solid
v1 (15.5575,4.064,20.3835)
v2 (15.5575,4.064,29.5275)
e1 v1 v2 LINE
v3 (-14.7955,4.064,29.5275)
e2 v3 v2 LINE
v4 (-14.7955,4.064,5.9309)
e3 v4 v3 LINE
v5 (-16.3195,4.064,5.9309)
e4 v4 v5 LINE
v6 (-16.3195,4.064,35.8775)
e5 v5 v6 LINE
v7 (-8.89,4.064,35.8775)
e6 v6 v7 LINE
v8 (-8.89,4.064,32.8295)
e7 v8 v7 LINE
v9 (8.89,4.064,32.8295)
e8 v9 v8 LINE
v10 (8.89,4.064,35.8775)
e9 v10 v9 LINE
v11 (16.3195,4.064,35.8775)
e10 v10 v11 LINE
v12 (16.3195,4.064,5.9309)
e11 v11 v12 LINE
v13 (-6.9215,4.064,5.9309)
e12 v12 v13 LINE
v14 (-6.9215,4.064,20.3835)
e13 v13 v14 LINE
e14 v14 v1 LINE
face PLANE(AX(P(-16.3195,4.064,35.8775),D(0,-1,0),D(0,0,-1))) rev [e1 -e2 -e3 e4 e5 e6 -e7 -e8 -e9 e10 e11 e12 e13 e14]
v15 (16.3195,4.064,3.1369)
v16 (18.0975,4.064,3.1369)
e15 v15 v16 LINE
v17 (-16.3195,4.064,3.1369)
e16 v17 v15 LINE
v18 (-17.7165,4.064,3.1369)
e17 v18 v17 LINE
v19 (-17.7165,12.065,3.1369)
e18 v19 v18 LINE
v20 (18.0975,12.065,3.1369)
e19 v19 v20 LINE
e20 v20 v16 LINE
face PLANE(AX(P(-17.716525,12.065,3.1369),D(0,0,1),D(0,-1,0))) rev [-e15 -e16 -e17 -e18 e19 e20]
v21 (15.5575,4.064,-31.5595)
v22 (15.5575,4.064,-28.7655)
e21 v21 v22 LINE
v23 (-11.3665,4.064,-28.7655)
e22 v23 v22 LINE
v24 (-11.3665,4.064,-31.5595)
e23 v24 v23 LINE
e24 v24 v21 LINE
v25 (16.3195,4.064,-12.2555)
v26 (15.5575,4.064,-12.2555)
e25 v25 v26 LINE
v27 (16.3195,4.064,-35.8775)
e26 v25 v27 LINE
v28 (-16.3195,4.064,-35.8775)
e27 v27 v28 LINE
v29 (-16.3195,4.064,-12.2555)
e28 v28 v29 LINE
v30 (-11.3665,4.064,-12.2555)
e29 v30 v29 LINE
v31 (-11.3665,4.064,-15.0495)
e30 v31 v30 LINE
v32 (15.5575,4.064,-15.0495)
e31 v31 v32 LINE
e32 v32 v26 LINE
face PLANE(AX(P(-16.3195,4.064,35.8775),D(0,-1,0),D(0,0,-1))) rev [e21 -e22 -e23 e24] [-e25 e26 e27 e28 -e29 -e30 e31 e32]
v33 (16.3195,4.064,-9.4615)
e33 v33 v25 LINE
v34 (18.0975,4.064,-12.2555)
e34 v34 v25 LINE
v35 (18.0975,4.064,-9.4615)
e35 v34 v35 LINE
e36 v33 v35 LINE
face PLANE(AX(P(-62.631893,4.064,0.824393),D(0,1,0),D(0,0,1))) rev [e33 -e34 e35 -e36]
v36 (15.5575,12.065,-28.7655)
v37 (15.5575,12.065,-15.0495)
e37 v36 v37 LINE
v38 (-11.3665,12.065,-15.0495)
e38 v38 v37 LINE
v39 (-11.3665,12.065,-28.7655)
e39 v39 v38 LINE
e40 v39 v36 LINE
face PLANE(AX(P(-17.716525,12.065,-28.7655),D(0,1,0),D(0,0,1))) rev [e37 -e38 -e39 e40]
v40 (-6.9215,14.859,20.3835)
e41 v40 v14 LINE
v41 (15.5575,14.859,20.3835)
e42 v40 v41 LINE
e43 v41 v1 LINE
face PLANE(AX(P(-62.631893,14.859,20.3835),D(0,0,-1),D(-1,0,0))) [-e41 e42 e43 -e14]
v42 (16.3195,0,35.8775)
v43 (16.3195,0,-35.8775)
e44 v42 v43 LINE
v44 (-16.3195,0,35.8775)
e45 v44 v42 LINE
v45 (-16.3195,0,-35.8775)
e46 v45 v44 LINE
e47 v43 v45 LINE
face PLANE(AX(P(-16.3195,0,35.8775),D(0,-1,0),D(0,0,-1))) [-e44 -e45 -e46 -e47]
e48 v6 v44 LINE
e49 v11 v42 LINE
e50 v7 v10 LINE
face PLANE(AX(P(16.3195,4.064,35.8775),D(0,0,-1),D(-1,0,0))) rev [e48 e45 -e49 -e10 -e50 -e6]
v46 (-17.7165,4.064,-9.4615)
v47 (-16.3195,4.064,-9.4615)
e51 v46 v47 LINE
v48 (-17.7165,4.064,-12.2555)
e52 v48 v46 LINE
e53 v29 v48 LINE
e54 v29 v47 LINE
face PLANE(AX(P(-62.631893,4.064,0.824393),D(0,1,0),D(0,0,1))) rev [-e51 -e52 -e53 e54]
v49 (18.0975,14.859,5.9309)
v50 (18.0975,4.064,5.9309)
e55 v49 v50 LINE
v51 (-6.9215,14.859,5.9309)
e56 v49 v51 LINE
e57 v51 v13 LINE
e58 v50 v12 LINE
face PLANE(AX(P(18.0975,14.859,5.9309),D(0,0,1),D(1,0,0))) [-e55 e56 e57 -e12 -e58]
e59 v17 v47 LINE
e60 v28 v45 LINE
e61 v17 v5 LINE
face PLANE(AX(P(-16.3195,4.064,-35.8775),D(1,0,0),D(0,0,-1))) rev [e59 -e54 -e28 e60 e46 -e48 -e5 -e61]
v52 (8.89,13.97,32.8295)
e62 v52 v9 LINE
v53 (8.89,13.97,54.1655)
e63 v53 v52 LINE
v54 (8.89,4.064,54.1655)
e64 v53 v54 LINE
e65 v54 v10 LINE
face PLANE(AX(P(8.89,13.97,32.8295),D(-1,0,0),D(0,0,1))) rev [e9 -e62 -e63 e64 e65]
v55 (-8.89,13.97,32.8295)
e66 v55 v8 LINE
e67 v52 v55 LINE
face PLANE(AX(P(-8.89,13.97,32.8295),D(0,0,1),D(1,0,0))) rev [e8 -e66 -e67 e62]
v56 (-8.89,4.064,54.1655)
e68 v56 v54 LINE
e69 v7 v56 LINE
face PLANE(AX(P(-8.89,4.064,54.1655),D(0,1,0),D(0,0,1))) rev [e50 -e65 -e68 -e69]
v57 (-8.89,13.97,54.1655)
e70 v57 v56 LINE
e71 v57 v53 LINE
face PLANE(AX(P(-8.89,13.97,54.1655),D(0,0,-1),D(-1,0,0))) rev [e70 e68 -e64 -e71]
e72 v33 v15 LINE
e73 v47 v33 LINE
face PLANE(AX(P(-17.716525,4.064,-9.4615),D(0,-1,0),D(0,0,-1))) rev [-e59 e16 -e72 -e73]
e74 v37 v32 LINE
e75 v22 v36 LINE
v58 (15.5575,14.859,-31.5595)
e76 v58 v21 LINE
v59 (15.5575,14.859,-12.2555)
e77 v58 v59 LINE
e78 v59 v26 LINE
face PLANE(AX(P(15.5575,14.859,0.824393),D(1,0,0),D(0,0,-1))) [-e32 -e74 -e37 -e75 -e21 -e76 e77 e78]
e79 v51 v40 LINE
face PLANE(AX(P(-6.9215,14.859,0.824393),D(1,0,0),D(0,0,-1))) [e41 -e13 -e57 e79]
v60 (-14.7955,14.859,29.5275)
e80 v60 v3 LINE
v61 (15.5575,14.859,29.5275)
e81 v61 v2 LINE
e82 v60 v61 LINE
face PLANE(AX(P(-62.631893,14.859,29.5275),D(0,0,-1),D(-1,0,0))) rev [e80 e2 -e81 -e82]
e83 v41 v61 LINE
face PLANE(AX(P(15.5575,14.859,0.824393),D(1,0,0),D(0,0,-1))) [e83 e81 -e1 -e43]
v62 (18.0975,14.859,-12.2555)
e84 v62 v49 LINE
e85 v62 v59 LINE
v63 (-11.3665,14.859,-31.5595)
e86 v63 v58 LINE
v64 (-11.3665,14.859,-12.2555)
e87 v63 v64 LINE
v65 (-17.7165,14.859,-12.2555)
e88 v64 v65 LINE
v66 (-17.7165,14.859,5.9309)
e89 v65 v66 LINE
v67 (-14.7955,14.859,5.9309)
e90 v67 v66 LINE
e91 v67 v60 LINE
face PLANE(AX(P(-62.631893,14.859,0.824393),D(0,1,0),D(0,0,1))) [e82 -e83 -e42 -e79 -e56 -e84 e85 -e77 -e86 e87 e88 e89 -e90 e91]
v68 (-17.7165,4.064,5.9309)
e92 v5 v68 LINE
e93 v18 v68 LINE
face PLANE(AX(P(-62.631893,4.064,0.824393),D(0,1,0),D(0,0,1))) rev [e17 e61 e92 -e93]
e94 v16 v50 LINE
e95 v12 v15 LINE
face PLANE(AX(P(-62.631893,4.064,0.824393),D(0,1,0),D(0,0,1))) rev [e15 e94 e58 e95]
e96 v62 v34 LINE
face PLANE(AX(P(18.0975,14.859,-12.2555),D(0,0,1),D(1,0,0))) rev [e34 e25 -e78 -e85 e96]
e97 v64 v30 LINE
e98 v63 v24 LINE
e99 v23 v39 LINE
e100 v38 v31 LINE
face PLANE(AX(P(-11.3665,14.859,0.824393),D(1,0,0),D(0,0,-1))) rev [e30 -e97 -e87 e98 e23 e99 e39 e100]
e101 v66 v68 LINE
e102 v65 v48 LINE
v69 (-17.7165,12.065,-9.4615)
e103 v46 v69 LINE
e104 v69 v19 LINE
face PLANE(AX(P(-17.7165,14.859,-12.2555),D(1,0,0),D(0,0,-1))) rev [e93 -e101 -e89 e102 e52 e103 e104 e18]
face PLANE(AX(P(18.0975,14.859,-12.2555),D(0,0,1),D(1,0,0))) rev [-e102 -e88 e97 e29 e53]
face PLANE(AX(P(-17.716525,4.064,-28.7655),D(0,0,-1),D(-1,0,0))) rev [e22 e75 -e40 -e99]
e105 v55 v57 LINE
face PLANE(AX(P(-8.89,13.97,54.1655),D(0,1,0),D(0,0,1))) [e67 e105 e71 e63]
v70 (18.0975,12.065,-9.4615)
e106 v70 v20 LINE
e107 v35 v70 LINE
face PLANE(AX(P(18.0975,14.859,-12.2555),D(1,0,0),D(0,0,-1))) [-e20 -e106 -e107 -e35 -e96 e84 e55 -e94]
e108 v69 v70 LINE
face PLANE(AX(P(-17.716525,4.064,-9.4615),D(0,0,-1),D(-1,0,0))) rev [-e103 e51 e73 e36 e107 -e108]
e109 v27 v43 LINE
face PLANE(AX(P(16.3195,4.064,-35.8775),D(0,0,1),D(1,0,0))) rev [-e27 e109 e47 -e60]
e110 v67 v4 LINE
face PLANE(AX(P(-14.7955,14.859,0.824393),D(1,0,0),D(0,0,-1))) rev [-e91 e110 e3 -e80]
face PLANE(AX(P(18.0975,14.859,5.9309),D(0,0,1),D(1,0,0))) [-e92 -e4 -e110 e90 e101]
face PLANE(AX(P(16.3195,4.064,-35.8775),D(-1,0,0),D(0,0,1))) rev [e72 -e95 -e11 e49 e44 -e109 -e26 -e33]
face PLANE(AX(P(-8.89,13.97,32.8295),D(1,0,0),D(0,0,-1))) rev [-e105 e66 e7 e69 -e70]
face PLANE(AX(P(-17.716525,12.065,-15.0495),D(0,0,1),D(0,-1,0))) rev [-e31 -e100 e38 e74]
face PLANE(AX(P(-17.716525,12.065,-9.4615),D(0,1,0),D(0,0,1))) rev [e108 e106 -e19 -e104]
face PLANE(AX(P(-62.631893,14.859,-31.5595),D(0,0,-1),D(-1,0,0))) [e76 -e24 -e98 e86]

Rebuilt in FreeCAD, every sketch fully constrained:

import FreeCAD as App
import Part
import Sketcher
from FreeCAD import Vector
Q = App.Units.Quantity

doc = App.newDocument("Part")
body = doc.addObject("PartDesign::Body", "Body")

# Sketch on XZ plane
sketch1 = body.newObject("Sketcher::SketchObject", "Sketch")
sketch1.AttachmentSupport = (doc.getObject("XZ_Plane"), [""])
sketch1.MapMode = "FlatFace"
sketch1.addGeometry([
    Part.LineSegment(Vector(-16, -36, 0), Vector(-16, 36, 0)),
    Part.LineSegment(Vector(-16, 36, 0), Vector(16, 36, 0)),
    Part.LineSegment(Vector(16, 36, 0), Vector(16, -36, 0)),
    Part.LineSegment(Vector(16, -36, 0), Vector(-16, -36, 0)),
], False)
sketch1.addConstraint([
    Sketcher.Constraint("Coincident", 0, 2, 1, 1),
    Sketcher.Constraint("Coincident", 1, 2, 2, 1),
    Sketcher.Constraint("Coincident", 2, 2, 3, 1),
    Sketcher.Constraint("Coincident", 3, 2, 0, 1),
    Sketcher.Constraint("Vertical", 0),
    Sketcher.Constraint("Horizontal", 1),
    Sketcher.Constraint("Vertical", 2),
    Sketcher.Constraint("Horizontal", 3),
    Sketcher.Constraint("Symmetric", 0, 2, 2, 2, -1, 1),
    Sketcher.Constraint("DistanceX", 1, 1, 1, 2, Q("1.285 in")),
    Sketcher.Constraint("DistanceY", 0, 1, 0, 2, Q("2.825 in")),
])
pad1 = body.newObject("PartDesign::Pad", "Pad")
pad1.Profile = sketch1
pad1.Length = Q("0.16 in")
pad1.Reversed = True

# Sketch on XZ plane
sketch2 = body.newObject("Sketcher::SketchObject", "Sketch001")
sketch2.AttachmentSupport = (doc.getObject("XZ_Plane"), [""])
sketch2.MapMode = "FlatFace"
sketch2.AttachmentOffset = App.Placement(Vector(0, 0, -0.16 * 25.4), App.Rotation())
sketch2.addGeometry([
    Part.LineSegment(Vector(-11.4, -31.6, 0), Vector(-11.4, -12.3, 0)),  # 0
    Part.LineSegment(Vector(-11.4, -12.3, 0), Vector(-17.7, -12.3, 0)),  # 1
    Part.LineSegment(Vector(-17.7, -12.3, 0), Vector(-17.7, 5.9, 0)),  # 2
    Part.LineSegment(Vector(-17.7, 5.9, 0), Vector(-14.8, 5.9, 0)),  # 3
    Part.LineSegment(Vector(-14.8, 5.9, 0), Vector(-14.8, 29.5, 0)),  # 4
    Part.LineSegment(Vector(-14.8, 29.5, 0), Vector(15.6, 29.5, 0)),  # 5
    Part.LineSegment(Vector(15.6, 29.5, 0), Vector(15.6, 20.4, 0)),  # 6
    Part.LineSegment(Vector(15.6, 20.4, 0), Vector(-6.9, 20.4, 0)),  # 7
    Part.LineSegment(Vector(-6.9, 20.4, 0), Vector(-6.9, 5.9, 0)),  # 8
    Part.LineSegment(Vector(-6.9, 5.9, 0), Vector(18.1, 5.9, 0)),  # 9
    Part.LineSegment(Vector(18.1, 5.9, 0), Vector(18.1, -12.3, 0)),  # 10
    Part.LineSegment(Vector(18.1, -12.3, 0), Vector(15.6, -12.3, 0)),  # 11
    Part.LineSegment(Vector(15.6, -12.3, 0), Vector(15.6, -31.6, 0)),  # 12
    Part.LineSegment(Vector(15.6, -31.6, 0), Vector(-11.4, -31.6, 0)),  # 13
], False)
sketch2.addConstraint([
    Sketcher.Constraint("Coincident", 0, 2, 1, 1),
    Sketcher.Constraint("Coincident", 1, 2, 2, 1),
    Sketcher.Constraint("Coincident", 2, 2, 3, 1),
    Sketcher.Constraint("Coincident", 3, 2, 4, 1),
    Sketcher.Constraint("Coincident", 4, 2, 5, 1),
    Sketcher.Constraint("Coincident", 5, 2, 6, 1),
    Sketcher.Constraint("Coincident", 6, 2, 7, 1),
    Sketcher.Constraint("Coincident", 7, 2, 8, 1),
    Sketcher.Constraint("Coincident", 8, 2, 9, 1),
    Sketcher.Constraint("Coincident", 9, 2, 10, 1),
    Sketcher.Constraint("Coincident", 10, 2, 11, 1),
    Sketcher.Constraint("Coincident", 11, 2, 12, 1),
    Sketcher.Constraint("Coincident", 12, 2, 13, 1),
    Sketcher.Constraint("Coincident", 13, 2, 0, 1),
    Sketcher.Constraint("Vertical", 0),
    Sketcher.Constraint("Horizontal", 1),
    Sketcher.Constraint("Vertical", 2),
    Sketcher.Constraint("Horizontal", 3),
    Sketcher.Constraint("Vertical", 4),
    Sketcher.Constraint("Horizontal", 5),
    Sketcher.Constraint("Vertical", 6),
    Sketcher.Constraint("Horizontal", 7),
    Sketcher.Constraint("Vertical", 8),
    Sketcher.Constraint("Horizontal", 9),
    Sketcher.Constraint("Vertical", 10),
    Sketcher.Constraint("Horizontal", 11),
    Sketcher.Constraint("Vertical", 12),
    Sketcher.Constraint("Horizontal", 13),
    Sketcher.Constraint("Horizontal", 3, 2, 8, 2),
    Sketcher.Constraint("Horizontal", 1, 2, 10, 2),
    Sketcher.Constraint("Vertical", 6, 2, 11, 2),
    Sketcher.Constraint("DistanceX", 11, 2, 11, 1, Q("0.1 in")),
    Sketcher.Constraint("DistanceX", 1, 2, 1, 1, Q("0.25 in")),
    Sketcher.Constraint("DistanceX", 13, 2, 13, 1, Q("1.06 in")),
    Sketcher.Constraint("DistanceY", 0, 1, 0, 2, Q("0.76 in")),
    Sketcher.Constraint("DistanceY", 6, 2, 6, 1, Q("0.36 in")),
    Sketcher.Constraint("DistanceX", 3, 1, 3, 2, Q("0.115 in")),
    Sketcher.Constraint("DistanceX", 7, 2, 7, 1, Q("0.885 in")),
    Sketcher.Constraint("DistanceY", 2, 1, 2, 2, Q("0.716 in")),
    Sketcher.Constraint("DistanceY", 4, 1, 4, 2, Q("0.929 in")),
    Sketcher.Constraint("DistanceX", 0, 2, -1, 1, Q("0.4475 in")),
    Sketcher.Constraint("DistanceY", 0, 2, -1, 1, Q("0.4825 in")),
])
pad2 = body.newObject("PartDesign::Pad", "Pad001")
pad2.Profile = sketch2
pad2.Length = Q("0.425 in")
pad2.Reversed = True

# Sketch on XZ plane
sketch3 = body.newObject("Sketcher::SketchObject", "Sketch002")
sketch3.AttachmentSupport = (doc.getObject("XZ_Plane"), [""])
sketch3.MapMode = "FlatFace"
sketch3.AttachmentOffset = App.Placement(Vector(0, 0, -0.16 * 25.4), App.Rotation())
sketch3.addGeometry([
    Part.LineSegment(Vector(-9, 33, 0), Vector(-9, 54, 0)),
    Part.LineSegment(Vector(-9, 54, 0), Vector(9, 54, 0)),
    Part.LineSegment(Vector(9, 54, 0), Vector(9, 33, 0)),
    Part.LineSegment(Vector(9, 33, 0), Vector(-9, 33, 0)),
], False)
sketch3.addConstraint([
    Sketcher.Constraint("Coincident", 0, 2, 1, 1),
    Sketcher.Constraint("Coincident", 1, 2, 2, 1),
    Sketcher.Constraint("Coincident", 2, 2, 3, 1),
    Sketcher.Constraint("Coincident", 3, 2, 0, 1),
    Sketcher.Constraint("Vertical", 0),
    Sketcher.Constraint("Horizontal", 1),
    Sketcher.Constraint("Vertical", 2),
    Sketcher.Constraint("Horizontal", 3),
    Sketcher.Constraint("DistanceX", 1, 1, 1, 2, Q("0.7 in")),
    Sketcher.Constraint("DistanceY", 0, 1, 0, 2, Q("0.84 in")),
    Sketcher.Constraint("DistanceX", 0, 2, -1, 1, Q("0.35 in")),
    Sketcher.Constraint("DistanceY", -1, 1, 0, 2, Q("2.1325 in")),
])
pad3 = body.newObject("PartDesign::Pad", "Pad002")
pad3.Profile = sketch3
pad3.Length = Q("0.39 in")
pad3.Reversed = True

# Sketch on YZ plane
sketch4 = body.newObject("Sketcher::SketchObject", "Sketch003")
sketch4.AttachmentSupport = (doc.getObject("YZ_Plane"), [""])
sketch4.MapMode = "FlatFace"
sketch4.AttachmentOffset = App.Placement(Vector(0, 0, 0.6125 * 25.4), App.Rotation())
sketch4.addGeometry([
    Part.LineSegment(Vector(12, -15, 0), Vector(4, -15, 0)),  # 0
    Part.LineSegment(Vector(4, -15, 0), Vector(4, -29, 0)),  # 1
    Part.LineSegment(Vector(4, -29, 0), Vector(12, -29, 0)),  # 2
    Part.LineSegment(Vector(12, -29, 0), Vector(12, -15, 0)),  # 3
    Part.LineSegment(Vector(12, 3, 0), Vector(4, 3, 0)),  # 4
    Part.LineSegment(Vector(4, 3, 0), Vector(4, -9, 0)),  # 5
    Part.LineSegment(Vector(4, -9, 0), Vector(12, -9, 0)),  # 6
    Part.LineSegment(Vector(12, -9, 0), Vector(12, 3, 0)),  # 7
], False)
sketch4.addConstraint([
    Sketcher.Constraint("Coincident", 0, 2, 1, 1),
    Sketcher.Constraint("Coincident", 1, 2, 2, 1),
    Sketcher.Constraint("Coincident", 2, 2, 3, 1),
    Sketcher.Constraint("Coincident", 3, 2, 0, 1),
    Sketcher.Constraint("Coincident", 4, 2, 5, 1),
    Sketcher.Constraint("Coincident", 5, 2, 6, 1),
    Sketcher.Constraint("Coincident", 6, 2, 7, 1),
    Sketcher.Constraint("Coincident", 7, 2, 4, 1),
    Sketcher.Constraint("Horizontal", 0),
    Sketcher.Constraint("Vertical", 1),
    Sketcher.Constraint("Horizontal", 2),
    Sketcher.Constraint("Vertical", 3),
    Sketcher.Constraint("Horizontal", 4),
    Sketcher.Constraint("Vertical", 5),
    Sketcher.Constraint("Horizontal", 6),
    Sketcher.Constraint("Vertical", 7),
    Sketcher.Constraint("Vertical", 1, 2, 4, 2),
    Sketcher.Constraint("Vertical", 3, 2, 6, 2),
    Sketcher.Constraint("DistanceY", 1, 2, 1, 1, Q("0.54 in")),
    Sketcher.Constraint("DistanceX", 0, 2, 0, 1, Q("0.315 in")),
    Sketcher.Constraint("DistanceY", 5, 2, 5, 1, Q("0.496 in")),
    Sketcher.Constraint("DistanceX", -1, 1, 0, 2, Q("0.16 in")),
    Sketcher.Constraint("DistanceY", 0, 2, 5, 2, Q("0.22 in")),
    Sketcher.Constraint("DistanceY", 0, 2, -1, 1, Q("0.5925 in")),
])
pocket1 = body.newObject("PartDesign::Pocket", "Pocket")
pocket1.Profile = sketch4
pocket1.Type = "ThroughAll"
pocket1.Midplane = True

doc.recompute()
